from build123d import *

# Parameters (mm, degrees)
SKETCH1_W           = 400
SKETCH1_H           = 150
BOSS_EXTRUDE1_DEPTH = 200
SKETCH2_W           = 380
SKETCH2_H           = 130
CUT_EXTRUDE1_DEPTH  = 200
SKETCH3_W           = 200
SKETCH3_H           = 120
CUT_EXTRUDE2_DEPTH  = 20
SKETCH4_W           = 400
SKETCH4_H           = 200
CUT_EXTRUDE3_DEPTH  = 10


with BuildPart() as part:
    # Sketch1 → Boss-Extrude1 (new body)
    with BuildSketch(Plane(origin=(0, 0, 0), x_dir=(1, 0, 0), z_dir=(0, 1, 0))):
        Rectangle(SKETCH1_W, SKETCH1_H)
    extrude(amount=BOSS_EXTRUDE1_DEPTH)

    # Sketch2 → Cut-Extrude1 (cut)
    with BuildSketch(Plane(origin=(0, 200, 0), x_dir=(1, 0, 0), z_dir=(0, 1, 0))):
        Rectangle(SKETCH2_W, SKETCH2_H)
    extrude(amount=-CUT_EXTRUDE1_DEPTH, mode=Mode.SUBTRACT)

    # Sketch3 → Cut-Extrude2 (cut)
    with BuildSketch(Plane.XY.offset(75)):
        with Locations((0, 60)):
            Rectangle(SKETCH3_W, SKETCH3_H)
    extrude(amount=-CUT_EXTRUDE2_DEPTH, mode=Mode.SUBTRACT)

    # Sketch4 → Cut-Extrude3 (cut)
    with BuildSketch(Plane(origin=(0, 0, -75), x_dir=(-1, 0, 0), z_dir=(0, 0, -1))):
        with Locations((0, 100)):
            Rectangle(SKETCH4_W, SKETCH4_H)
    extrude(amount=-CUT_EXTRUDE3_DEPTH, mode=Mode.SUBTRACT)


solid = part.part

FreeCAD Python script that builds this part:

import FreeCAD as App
import Part
import Sketcher

V = App.Vector
Q = App.Units.Quantity

doc = App.newDocument("Part")
params = doc.addObject("Spreadsheet::Sheet", "Params")
for row, (alias, value) in enumerate([
    ("sketch1_width", "400 mm"),
    ("sketch1_height", "150 mm"),
    ("pad1_length", "200 mm"),
    ("sketch2_width", "380 mm"),
    ("sketch2_height", "130 mm"),
    ("pocket1_length", "200 mm"),
    ("sketch3_width", "200 mm"),
    ("sketch3_height", "120 mm"),
    ("pocket2_length", "20 mm"),
    ("sketch4_width", "400 mm"),
    ("sketch4_height", "200 mm"),
    ("pocket3_length", "10 mm"),
], start=1):
    params.set(f"A{row}", alias)
    params.set(f"B{row}", "=" + value)
    params.setAlias(f"B{row}", alias)

body = doc.addObject("PartDesign::Body", "Body")

sketch1 = doc.addObject("Sketcher::SketchObject", "Sketch")
body.addObject(sketch1)
sketch1.AttachmentSupport = (doc.XZ_Plane, [""])
sketch1.MapMode = "FlatFace"
sketch1.addGeometry(Part.LineSegment(V(-200, -75, 0), V(-200, 75, 0)), False)
sketch1.addGeometry(Part.LineSegment(V(-200, 75, 0), V(200, 75, 0)), False)
sketch1.addGeometry(Part.LineSegment(V(200, 75, 0), V(200, -75, 0)), False)
sketch1.addGeometry(Part.LineSegment(V(200, -75, 0), V(-200, -75, 0)), False)
sketch1.addConstraint(Sketcher.Constraint("Coincident", 0, 2, 1, 1))
sketch1.addConstraint(Sketcher.Constraint("Coincident", 1, 2, 2, 1))
sketch1.addConstraint(Sketcher.Constraint("Coincident", 2, 2, 3, 1))
sketch1.addConstraint(Sketcher.Constraint("Coincident", 3, 2, 0, 1))
sketch1.addConstraint(Sketcher.Constraint("Vertical", 0))
sketch1.addConstraint(Sketcher.Constraint("Horizontal", 1))
sketch1.addConstraint(Sketcher.Constraint("Vertical", 2))
sketch1.addConstraint(Sketcher.Constraint("Horizontal", 3))
sketch1.addConstraint(Sketcher.Constraint("Symmetric", 0, 2, 2, 2, -1, 1))
sketch1.addConstraint(Sketcher.Constraint("DistanceX", 1, 1, 1, 2, Q("400 mm")))
sketch1.addConstraint(Sketcher.Constraint("DistanceY", 0, 1, 0, 2, Q("150 mm")))
sketch1.setExpression("Constraints[9]", "Params.sketch1_width")
sketch1.setExpression("Constraints[10]", "Params.sketch1_height")
pad1 = doc.addObject("PartDesign::Pad", "Pad")
body.addObject(pad1)
pad1.Profile = sketch1
pad1.setExpression("Length", "Params.pad1_length")
pad1.Reversed = True

sketch2 = doc.addObject("Sketcher::SketchObject", "Sketch001")
body.addObject(sketch2)
sketch2.AttachmentSupport = (doc.XZ_Plane, [""])
sketch2.MapMode = "FlatFace"
sketch2.AttachmentOffset = App.Placement(V(0, 0, -200), App.Rotation())
sketch2.addGeometry(Part.LineSegment(V(-190, -65, 0), V(-190, 65, 0)), False)
sketch2.addGeometry(Part.LineSegment(V(-190, 65, 0), V(190, 65, 0)), False)
sketch2.addGeometry(Part.LineSegment(V(190, 65, 0), V(190, -65, 0)), False)
sketch2.addGeometry(Part.LineSegment(V(190, -65, 0), V(-190, -65, 0)), False)
sketch2.addConstraint(Sketcher.Constraint("Coincident", 0, 2, 1, 1))
sketch2.addConstraint(Sketcher.Constraint("Coincident", 1, 2, 2, 1))
sketch2.addConstraint(Sketcher.Constraint("Coincident", 2, 2, 3, 1))
sketch2.addConstraint(Sketcher.Constraint("Coincident", 3, 2, 0, 1))
sketch2.addConstraint(Sketcher.Constraint("Vertical", 0))
sketch2.addConstraint(Sketcher.Constraint("Horizontal", 1))
sketch2.addConstraint(Sketcher.Constraint("Vertical", 2))
sketch2.addConstraint(Sketcher.Constraint("Horizontal", 3))
sketch2.addConstraint(Sketcher.Constraint("Symmetric", 0, 2, 2, 2, -1, 1))
sketch2.addConstraint(Sketcher.Constraint("DistanceX", 1, 1, 1, 2, Q("380 mm")))
sketch2.addConstraint(Sketcher.Constraint("DistanceY", 0, 1, 0, 2, Q("130 mm")))
sketch2.setExpression("Constraints[9]", "Params.sketch2_width")
sketch2.setExpression("Constraints[10]", "Params.sketch2_height")
pocket1 = doc.addObject("PartDesign::Pocket", "Pocket")
body.addObject(pocket1)
pocket1.Profile = sketch2
pocket1.setExpression("Length", "Params.pocket1_length")
pocket1.Reversed = True

sketch3 = doc.addObject("Sketcher::SketchObject", "Sketch002")
body.addObject(sketch3)
sketch3.AttachmentSupport = (doc.XY_Plane, [""])
sketch3.MapMode = "FlatFace"
sketch3.AttachmentOffset = App.Placement(V(0, 0, 75), App.Rotation())
sketch3.addGeometry(Part.LineSegment(V(-100, 120, 0), V(-100, 0, 0)), False)
sketch3.addGeometry(Part.LineSegment(V(-100, 0, 0), V(100, 0, 0)), False)
sketch3.addGeometry(Part.LineSegment(V(100, 0, 0), V(100, 120, 0)), False)
sketch3.addGeometry(Part.LineSegment(V(100, 120, 0), V(-100, 120, 0)), False)
sketch3.addConstraint(Sketcher.Constraint("Coincident", 0, 2, 1, 1))
sketch3.addConstraint(Sketcher.Constraint("Coincident", 1, 2, 2, 1))
sketch3.addConstraint(Sketcher.Constraint("Coincident", 2, 2, 3, 1))
sketch3.addConstraint(Sketcher.Constraint("Coincident", 3, 2, 0, 1))
sketch3.addConstraint(Sketcher.Constraint("Vertical", 0))
sketch3.addConstraint(Sketcher.Constraint("Horizontal", 1))
sketch3.addConstraint(Sketcher.Constraint("Vertical", 2))
sketch3.addConstraint(Sketcher.Constraint("Horizontal", 3))
sketch3.addConstraint(Sketcher.Constraint("Symmetric", 0, 2, 1, 2, -1, 1))
sketch3.addConstraint(Sketcher.Constraint("DistanceX", 1, 1, 1, 2, Q("200 mm")))
sketch3.addConstraint(Sketcher.Constraint("DistanceY", 0, 2, 0, 1, Q("120 mm")))
sketch3.setExpression("Constraints[9]", "Params.sketch3_width")
sketch3.setExpression("Constraints[10]", "Params.sketch3_height")
pocket2 = doc.addObject("PartDesign::Pocket", "Pocket001")
body.addObject(pocket2)
pocket2.Profile = sketch3
pocket2.setExpression("Length", "Params.pocket2_length")

sketch4 = doc.addObject("Sketcher::SketchObject", "Sketch003")
body.addObject(sketch4)
sketch4.AttachmentSupport = (doc.XY_Plane, [""])
sketch4.MapMode = "FlatFace"
sketch4.AttachmentOffset = App.Placement(V(0, 0, -75), App.Rotation())
sketch4.addGeometry(Part.LineSegment(V(200, 200, 0), V(200, 0, 0)), False)
sketch4.addGeometry(Part.LineSegment(V(200, 0, 0), V(-200, 0, 0)), False)
sketch4.addGeometry(Part.LineSegment(V(-200, 0, 0), V(-200, 200, 0)), False)
sketch4.addGeometry(Part.LineSegment(V(-200, 200, 0), V(200, 200, 0)), False)
sketch4.addConstraint(Sketcher.Constraint("Coincident", 0, 2, 1, 1))
sketch4.addConstraint(Sketcher.Constraint("Coincident", 1, 2, 2, 1))
sketch4.addConstraint(Sketcher.Constraint("Coincident", 2, 2, 3, 1))
sketch4.addConstraint(Sketcher.Constraint("Coincident", 3, 2, 0, 1))
sketch4.addConstraint(Sketcher.Constraint("Vertical", 0))
sketch4.addConstraint(Sketcher.Constraint("Horizontal", 1))
sketch4.addConstraint(Sketcher.Constraint("Vertical", 2))
sketch4.addConstraint(Sketcher.Constraint("Horizontal", 3))
sketch4.addConstraint(Sketcher.Constraint("Symmetric", 0, 2, 1, 2, -1, 1))
sketch4.addConstraint(Sketcher.Constraint("DistanceX", 1, 2, 1, 1, Q("400 mm")))
sketch4.addConstraint(Sketcher.Constraint("DistanceY", 0, 2, 0, 1, Q("200 mm")))
sketch4.setExpression("Constraints[9]", "Params.sketch4_width")
sketch4.setExpression("Constraints[10]", "Params.sketch4_height")
pocket3 = doc.addObject("PartDesign::Pocket", "Pocket002")
body.addObject(pocket3)
pocket3.Profile = sketch4
pocket3.setExpression("Length", "Params.pocket3_length")
pocket3.Reversed = True

doc.recompute()
